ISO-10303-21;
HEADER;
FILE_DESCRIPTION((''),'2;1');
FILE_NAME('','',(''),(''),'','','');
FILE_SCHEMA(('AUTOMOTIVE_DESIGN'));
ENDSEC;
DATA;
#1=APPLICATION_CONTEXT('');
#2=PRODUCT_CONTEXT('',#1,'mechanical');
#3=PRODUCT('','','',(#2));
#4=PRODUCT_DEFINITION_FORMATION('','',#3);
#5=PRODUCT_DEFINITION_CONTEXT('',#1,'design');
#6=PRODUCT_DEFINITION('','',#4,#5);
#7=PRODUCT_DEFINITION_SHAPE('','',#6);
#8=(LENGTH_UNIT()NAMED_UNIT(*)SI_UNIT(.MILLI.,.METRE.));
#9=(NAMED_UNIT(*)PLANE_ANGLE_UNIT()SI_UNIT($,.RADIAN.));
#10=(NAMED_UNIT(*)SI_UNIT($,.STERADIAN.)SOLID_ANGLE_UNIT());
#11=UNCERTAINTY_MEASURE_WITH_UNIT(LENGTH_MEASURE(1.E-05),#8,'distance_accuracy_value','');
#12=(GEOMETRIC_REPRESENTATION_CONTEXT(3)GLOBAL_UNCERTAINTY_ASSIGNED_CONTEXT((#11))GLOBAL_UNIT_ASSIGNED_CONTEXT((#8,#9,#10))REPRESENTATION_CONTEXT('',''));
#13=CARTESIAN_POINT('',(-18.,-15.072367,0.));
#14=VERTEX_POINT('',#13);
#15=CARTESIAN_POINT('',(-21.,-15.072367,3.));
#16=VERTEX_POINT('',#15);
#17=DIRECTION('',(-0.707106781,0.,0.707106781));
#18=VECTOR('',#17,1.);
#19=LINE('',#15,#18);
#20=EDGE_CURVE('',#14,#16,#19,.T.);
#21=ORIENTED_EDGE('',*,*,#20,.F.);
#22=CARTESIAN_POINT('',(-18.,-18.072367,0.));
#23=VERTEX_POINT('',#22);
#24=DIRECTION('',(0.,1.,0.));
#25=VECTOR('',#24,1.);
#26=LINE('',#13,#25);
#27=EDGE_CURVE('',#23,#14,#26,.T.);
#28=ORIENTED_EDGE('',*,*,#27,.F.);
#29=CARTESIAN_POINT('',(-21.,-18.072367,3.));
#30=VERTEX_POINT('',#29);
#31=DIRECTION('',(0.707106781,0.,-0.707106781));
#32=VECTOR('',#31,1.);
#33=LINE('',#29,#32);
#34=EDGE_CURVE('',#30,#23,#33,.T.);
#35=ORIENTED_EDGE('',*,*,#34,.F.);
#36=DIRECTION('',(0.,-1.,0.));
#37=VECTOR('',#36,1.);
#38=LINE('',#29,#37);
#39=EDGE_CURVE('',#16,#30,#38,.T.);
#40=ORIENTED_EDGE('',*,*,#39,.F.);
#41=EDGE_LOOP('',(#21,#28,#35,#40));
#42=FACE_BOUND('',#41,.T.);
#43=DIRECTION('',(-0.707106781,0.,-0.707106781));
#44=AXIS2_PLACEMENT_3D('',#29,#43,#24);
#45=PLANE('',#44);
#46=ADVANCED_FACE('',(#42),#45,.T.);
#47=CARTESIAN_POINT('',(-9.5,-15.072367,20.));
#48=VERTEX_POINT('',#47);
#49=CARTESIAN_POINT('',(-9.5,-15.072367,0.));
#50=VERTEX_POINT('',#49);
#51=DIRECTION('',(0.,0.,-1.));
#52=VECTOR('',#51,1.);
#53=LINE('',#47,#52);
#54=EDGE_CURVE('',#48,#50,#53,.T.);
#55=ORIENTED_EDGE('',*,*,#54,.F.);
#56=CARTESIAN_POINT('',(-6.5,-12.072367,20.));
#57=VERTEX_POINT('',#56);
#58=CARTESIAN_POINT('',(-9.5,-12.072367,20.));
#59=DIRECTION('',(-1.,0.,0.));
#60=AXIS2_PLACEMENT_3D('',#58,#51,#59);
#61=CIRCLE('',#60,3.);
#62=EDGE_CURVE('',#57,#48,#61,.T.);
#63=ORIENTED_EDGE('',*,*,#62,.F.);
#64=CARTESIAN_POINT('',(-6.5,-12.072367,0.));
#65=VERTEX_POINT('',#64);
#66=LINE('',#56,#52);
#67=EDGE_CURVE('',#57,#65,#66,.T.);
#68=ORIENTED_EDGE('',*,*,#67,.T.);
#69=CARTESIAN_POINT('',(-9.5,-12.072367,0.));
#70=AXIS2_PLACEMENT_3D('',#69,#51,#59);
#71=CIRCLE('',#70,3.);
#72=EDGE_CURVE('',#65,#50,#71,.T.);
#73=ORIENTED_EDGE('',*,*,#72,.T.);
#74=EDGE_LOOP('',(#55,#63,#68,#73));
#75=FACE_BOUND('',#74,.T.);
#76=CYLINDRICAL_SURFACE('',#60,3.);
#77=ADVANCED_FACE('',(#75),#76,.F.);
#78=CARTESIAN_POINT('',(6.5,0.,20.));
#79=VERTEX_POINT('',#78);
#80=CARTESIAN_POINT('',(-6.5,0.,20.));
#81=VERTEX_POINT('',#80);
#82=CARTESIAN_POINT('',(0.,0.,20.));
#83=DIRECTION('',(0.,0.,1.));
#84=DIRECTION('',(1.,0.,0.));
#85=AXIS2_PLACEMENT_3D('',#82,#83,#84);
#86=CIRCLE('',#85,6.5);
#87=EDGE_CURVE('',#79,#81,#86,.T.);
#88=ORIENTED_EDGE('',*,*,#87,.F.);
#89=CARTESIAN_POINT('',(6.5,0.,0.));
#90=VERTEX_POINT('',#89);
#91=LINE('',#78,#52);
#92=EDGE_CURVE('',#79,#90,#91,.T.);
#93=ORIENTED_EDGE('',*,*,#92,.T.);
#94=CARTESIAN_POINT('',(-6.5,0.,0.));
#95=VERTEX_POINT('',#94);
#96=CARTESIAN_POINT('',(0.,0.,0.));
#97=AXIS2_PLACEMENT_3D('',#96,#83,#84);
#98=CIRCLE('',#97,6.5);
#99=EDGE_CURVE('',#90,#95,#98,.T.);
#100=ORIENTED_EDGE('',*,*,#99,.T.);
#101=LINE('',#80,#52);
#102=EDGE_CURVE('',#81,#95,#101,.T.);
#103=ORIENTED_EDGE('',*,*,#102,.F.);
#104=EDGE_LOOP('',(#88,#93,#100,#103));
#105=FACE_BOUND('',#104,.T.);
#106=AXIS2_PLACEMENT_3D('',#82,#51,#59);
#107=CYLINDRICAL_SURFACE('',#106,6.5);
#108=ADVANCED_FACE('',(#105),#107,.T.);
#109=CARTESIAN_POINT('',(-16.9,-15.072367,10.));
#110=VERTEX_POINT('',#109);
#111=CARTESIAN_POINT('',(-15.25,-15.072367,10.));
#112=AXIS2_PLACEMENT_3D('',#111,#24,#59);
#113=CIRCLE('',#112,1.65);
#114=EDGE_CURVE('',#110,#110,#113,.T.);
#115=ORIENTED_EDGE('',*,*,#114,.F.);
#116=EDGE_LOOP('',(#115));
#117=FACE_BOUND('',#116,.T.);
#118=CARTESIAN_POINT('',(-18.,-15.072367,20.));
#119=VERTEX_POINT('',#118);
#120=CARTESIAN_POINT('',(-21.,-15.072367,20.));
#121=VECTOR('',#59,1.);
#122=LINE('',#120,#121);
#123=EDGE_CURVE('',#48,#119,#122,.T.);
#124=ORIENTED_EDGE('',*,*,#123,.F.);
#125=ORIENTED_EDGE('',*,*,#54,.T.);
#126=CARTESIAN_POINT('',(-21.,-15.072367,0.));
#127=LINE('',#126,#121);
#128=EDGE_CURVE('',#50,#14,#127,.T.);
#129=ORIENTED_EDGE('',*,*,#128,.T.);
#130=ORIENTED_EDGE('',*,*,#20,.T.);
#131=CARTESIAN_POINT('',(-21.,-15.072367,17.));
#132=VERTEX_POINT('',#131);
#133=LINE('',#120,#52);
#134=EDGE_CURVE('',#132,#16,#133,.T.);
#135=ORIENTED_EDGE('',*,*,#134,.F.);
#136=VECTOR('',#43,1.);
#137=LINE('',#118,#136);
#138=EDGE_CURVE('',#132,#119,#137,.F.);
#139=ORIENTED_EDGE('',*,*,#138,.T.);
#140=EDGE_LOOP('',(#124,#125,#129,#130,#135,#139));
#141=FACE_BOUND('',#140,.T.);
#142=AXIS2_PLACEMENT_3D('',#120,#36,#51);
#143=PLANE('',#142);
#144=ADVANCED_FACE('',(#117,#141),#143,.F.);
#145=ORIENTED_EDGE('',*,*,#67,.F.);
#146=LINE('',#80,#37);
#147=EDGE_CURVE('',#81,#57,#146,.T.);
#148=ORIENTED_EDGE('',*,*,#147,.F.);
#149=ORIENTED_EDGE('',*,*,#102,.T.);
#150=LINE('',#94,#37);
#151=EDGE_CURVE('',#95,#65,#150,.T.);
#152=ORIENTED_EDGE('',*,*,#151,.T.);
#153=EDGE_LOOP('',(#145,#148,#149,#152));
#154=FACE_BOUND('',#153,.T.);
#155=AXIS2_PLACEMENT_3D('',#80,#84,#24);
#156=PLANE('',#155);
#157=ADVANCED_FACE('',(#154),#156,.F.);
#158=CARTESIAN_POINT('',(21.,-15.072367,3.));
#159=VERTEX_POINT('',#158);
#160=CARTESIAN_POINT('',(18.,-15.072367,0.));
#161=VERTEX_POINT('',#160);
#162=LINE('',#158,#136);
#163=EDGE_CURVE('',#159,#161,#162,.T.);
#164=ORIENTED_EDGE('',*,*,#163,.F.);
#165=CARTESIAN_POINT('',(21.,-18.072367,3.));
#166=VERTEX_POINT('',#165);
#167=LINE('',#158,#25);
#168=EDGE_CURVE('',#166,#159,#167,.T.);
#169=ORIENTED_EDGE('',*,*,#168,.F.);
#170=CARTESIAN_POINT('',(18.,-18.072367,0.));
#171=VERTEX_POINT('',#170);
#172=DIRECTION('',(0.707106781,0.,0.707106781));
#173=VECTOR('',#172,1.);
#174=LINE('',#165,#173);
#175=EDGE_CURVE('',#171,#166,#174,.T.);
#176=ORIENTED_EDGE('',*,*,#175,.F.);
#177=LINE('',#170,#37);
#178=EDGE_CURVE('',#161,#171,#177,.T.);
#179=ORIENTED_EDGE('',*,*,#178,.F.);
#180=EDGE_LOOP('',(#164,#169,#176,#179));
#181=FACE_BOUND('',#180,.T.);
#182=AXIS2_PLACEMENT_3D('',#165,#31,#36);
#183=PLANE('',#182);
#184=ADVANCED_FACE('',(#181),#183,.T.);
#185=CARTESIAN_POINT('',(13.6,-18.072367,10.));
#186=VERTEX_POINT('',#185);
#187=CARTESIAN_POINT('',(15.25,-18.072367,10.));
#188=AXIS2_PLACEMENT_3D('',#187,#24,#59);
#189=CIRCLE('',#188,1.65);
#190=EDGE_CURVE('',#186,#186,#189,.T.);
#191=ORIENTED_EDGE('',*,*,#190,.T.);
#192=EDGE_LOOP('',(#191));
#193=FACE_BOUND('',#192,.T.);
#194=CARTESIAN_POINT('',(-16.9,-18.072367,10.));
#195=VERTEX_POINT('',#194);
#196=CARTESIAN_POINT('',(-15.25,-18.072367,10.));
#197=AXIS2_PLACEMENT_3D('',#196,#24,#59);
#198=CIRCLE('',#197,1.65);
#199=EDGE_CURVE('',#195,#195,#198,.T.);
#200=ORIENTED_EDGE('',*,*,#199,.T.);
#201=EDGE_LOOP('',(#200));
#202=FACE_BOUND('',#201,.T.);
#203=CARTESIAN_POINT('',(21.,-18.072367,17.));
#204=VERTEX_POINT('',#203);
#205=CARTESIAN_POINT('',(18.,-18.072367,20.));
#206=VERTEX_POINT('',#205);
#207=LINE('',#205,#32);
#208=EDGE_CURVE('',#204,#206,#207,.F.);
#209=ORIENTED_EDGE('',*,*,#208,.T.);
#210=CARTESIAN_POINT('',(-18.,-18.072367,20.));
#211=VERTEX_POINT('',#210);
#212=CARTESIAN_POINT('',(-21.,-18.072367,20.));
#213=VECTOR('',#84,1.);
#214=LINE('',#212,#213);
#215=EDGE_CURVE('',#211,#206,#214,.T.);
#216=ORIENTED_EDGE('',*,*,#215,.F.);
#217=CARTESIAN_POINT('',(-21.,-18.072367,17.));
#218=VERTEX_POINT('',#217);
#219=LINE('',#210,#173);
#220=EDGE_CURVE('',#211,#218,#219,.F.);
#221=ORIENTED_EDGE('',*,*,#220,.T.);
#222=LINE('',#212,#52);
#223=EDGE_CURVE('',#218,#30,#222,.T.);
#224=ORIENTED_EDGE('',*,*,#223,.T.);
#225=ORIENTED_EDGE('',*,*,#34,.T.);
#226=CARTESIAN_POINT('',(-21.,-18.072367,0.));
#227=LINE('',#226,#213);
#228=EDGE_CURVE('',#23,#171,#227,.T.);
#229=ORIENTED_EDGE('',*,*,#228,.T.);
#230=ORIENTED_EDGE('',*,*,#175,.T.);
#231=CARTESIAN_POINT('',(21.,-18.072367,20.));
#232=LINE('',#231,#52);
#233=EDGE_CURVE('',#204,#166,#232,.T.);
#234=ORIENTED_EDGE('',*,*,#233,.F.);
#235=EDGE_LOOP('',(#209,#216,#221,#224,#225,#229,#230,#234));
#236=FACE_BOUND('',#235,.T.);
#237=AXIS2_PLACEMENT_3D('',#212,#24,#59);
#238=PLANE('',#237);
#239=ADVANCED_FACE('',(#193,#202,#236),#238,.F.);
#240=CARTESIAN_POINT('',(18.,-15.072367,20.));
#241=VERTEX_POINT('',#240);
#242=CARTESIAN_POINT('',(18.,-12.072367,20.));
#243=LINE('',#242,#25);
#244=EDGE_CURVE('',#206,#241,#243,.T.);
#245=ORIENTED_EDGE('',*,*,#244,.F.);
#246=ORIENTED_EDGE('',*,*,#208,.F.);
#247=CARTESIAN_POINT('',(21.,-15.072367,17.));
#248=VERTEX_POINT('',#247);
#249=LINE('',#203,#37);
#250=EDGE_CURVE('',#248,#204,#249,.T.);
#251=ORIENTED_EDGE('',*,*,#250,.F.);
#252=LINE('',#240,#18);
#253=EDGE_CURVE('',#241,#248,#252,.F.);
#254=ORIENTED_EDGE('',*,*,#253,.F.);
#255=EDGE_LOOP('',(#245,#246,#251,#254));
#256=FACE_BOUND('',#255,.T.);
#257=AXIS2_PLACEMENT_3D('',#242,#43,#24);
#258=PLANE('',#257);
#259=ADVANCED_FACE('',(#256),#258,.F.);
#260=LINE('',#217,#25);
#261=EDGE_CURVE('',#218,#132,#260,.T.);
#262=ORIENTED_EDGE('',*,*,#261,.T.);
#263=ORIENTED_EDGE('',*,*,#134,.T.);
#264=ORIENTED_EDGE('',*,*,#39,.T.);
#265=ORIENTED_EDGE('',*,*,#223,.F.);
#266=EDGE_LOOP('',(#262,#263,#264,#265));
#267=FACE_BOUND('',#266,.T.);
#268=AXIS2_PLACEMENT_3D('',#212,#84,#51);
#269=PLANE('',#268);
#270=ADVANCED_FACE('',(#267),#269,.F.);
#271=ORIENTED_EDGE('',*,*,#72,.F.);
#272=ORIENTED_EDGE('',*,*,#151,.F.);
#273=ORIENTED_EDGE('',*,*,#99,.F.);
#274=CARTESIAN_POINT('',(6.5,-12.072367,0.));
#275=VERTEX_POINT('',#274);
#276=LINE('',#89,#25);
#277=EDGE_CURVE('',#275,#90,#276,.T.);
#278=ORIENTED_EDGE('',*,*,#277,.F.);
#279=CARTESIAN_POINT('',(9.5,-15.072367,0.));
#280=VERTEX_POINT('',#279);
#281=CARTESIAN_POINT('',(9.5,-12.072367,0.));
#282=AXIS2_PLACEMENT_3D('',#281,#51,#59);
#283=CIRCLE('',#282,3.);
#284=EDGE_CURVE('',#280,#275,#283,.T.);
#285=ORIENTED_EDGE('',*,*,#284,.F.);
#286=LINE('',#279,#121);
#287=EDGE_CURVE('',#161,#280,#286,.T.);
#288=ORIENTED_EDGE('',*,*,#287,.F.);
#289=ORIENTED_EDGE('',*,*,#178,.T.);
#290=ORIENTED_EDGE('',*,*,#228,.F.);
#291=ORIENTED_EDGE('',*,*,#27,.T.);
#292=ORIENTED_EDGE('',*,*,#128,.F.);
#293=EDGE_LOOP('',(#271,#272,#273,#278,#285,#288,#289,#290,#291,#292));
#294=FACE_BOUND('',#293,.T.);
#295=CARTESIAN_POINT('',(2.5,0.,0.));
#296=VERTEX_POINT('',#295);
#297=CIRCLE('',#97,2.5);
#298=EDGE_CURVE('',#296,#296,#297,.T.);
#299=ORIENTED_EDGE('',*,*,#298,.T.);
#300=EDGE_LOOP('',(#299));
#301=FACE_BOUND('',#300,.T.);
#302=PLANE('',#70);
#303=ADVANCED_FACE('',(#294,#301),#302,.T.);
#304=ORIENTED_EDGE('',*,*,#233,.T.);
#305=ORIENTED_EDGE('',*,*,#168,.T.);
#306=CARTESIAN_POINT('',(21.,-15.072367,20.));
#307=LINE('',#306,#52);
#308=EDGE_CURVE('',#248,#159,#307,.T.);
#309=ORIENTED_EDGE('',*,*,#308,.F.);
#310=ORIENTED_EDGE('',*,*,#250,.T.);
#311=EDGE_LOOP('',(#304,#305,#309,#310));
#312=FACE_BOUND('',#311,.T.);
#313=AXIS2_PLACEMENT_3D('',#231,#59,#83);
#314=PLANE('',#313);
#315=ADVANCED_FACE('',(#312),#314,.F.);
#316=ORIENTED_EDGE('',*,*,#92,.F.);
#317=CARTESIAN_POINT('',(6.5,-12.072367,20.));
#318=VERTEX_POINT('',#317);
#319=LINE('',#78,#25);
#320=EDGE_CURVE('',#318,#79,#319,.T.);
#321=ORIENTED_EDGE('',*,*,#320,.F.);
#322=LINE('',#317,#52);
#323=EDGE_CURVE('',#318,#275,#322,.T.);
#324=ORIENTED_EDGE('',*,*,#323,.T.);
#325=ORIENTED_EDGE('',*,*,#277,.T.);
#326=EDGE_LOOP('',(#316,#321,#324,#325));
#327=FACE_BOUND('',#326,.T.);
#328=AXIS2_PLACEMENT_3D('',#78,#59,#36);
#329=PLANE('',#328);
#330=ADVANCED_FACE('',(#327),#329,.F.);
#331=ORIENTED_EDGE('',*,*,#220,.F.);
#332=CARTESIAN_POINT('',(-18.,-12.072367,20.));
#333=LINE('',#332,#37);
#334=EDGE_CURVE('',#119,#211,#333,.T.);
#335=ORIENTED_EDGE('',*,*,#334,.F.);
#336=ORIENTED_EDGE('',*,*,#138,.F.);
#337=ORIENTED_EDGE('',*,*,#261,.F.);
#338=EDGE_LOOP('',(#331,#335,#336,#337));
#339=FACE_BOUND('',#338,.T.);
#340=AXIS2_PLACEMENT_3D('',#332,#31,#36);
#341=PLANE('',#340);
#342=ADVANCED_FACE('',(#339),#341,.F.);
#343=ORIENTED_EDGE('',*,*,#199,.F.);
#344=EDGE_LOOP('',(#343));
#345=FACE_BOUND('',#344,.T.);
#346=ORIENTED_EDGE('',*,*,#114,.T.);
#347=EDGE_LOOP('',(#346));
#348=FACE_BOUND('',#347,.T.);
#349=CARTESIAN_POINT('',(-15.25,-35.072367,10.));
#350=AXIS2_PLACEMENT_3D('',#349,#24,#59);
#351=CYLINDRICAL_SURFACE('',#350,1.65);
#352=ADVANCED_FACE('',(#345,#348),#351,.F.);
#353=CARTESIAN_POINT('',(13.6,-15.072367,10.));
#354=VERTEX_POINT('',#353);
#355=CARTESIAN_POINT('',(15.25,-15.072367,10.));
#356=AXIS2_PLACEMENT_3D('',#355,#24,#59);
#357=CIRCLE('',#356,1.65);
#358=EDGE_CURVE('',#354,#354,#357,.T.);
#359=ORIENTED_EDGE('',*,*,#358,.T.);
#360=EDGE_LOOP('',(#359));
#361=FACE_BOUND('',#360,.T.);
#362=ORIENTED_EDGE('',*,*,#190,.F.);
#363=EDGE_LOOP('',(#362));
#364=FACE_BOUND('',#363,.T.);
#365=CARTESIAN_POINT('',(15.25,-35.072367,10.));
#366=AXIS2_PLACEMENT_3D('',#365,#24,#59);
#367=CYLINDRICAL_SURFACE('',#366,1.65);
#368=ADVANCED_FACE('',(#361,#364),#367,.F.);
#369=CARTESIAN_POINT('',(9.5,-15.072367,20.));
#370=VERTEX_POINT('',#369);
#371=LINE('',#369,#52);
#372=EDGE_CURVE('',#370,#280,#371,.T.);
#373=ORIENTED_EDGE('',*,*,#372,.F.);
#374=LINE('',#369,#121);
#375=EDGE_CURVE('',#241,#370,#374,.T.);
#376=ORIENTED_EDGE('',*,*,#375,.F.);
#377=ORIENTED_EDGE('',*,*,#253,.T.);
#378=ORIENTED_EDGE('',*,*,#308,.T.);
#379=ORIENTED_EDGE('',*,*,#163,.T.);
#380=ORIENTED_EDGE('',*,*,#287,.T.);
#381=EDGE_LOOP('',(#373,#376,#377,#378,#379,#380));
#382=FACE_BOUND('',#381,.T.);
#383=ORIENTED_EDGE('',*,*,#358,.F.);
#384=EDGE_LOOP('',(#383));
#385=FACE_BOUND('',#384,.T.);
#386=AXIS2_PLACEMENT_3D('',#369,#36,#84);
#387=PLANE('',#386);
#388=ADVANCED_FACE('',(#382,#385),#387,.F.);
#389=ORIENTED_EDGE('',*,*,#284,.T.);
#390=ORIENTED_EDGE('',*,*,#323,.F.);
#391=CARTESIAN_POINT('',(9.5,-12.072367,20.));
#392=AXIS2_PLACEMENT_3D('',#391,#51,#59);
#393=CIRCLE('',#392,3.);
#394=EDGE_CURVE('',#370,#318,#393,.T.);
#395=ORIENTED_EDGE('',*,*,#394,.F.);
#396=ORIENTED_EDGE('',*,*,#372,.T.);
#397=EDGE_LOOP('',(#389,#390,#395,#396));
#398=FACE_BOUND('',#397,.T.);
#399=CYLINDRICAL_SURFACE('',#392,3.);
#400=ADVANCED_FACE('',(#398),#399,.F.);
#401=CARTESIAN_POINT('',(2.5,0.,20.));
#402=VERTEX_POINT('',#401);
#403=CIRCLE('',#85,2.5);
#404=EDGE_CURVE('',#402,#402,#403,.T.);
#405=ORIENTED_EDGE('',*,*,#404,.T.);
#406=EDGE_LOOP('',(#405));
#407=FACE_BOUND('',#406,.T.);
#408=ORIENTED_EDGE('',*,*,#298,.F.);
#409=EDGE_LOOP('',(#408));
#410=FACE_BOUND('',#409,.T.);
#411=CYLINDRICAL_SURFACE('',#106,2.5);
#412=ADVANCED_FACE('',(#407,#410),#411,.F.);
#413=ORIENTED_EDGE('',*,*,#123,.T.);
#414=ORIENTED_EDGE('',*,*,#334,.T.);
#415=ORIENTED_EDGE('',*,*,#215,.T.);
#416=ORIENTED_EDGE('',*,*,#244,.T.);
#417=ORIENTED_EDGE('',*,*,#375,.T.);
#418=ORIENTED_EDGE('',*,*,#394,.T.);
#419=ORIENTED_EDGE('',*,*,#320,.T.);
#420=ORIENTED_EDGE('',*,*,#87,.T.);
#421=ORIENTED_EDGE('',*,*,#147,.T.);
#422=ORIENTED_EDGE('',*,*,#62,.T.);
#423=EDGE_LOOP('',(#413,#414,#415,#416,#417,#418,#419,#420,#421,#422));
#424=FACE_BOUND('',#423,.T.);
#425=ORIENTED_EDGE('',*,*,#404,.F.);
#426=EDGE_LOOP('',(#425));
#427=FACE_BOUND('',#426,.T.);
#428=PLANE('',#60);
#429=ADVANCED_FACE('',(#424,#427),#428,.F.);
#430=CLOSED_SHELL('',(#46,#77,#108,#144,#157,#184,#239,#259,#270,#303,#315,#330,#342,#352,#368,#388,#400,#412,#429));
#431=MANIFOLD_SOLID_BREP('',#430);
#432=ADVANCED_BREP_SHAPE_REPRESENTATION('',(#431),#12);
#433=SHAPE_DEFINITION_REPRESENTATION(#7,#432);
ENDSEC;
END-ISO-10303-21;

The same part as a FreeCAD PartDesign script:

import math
import FreeCAD as App
import Part
import Sketcher

V = App.Vector


def edges_at(feature, points):
    """Names of the edges that pass closest to the given points."""
    edges = feature.Shape.Edges
    near = lambda p: min(range(len(edges)), key=lambda i: edges[i].distToShape(Part.Vertex(*p))[0])
    return sorted({f"Edge{near(p) + 1}" for p in points})

doc = App.newDocument("Part")
body = doc.addObject("PartDesign::Body", "Body")

# Sketch on XY plane
sketch1 = body.newObject("Sketcher::SketchObject", "Sketch")
sketch1.AttachmentSupport = (doc.getObject("XY_Plane"), [""])
sketch1.MapMode = "FlatFace"
sketch1.addGeometry([
    Part.LineSegment(V(-21, -18.1, 0), V(21, -18.1, 0)),  # 0
    Part.LineSegment(V(21, -18.1, 0), V(21, -15.1, 0)),  # 1
    Part.LineSegment(V(21, -15.1, 0), V(9.5, -15.1, 0)),  # 2
    Part.ArcOfCircle(Part.Circle(V(9.5, -12.1, 0), V(0, 0, 1), 3), math.radians(180), math.radians(270)),  # 3
    Part.LineSegment(V(6.5, -12.1, 0), V(6.5, 0, 0)),  # 4
    Part.ArcOfCircle(Part.Circle(V(0, 0, 0), V(0, 0, 1), 6.5), math.radians(0), math.radians(180)),  # 5
    Part.LineSegment(V(-6.5, 0, 0), V(-6.5, -12.1, 0)),  # 6
    Part.ArcOfCircle(Part.Circle(V(-9.5, -12.1, 0), V(0, 0, 1), 3), math.radians(-90), math.radians(0)),  # 7
    Part.LineSegment(V(-9.5, -15.1, 0), V(-21, -15.1, 0)),  # 8
    Part.LineSegment(V(-21, -15.1, 0), V(-21, -18.1, 0)),  # 9
    Part.Circle(V(0, 0, 0), V(0, 0, 1), 2.5),  # 10
], False)
sketch1.addConstraint([
    Sketcher.Constraint("Coincident", 0, 2, 1, 1),
    Sketcher.Constraint("Coincident", 1, 2, 2, 1),
    Sketcher.Constraint("Tangent", 2, 2, 3, 2),
    Sketcher.Constraint("Tangent", 3, 1, 4, 1),
    Sketcher.Constraint("Tangent", 4, 2, 5, 1),
    Sketcher.Constraint("Tangent", 5, 2, 6, 1),
    Sketcher.Constraint("Tangent", 6, 2, 7, 2),
    Sketcher.Constraint("Tangent", 7, 1, 8, 1),
    Sketcher.Constraint("Coincident", 8, 2, 9, 1),
    Sketcher.Constraint("Coincident", 9, 2, 0, 1),
    Sketcher.Constraint("Horizontal", 0),
    Sketcher.Constraint("Vertical", 1),
    Sketcher.Constraint("Horizontal", 2),
    Sketcher.Constraint("Vertical", 4),
    Sketcher.Constraint("Vertical", 6),
    Sketcher.Constraint("Horizontal", 8),
    Sketcher.Constraint("Vertical", 9),
    Sketcher.Constraint("Coincident", 5, 3, -1, 1),
    Sketcher.Constraint("Coincident", 10, 3, -1, 1),
    Sketcher.Constraint("Equal", 3, 7),
    Sketcher.Constraint("Symmetric", 1, 2, 8, 2, -2),
    Sketcher.Constraint("Diameter", 10, 5.0),
    Sketcher.Constraint("Radius", 3, 3.0),
    Sketcher.Constraint("Radius", 5, 6.5),
    Sketcher.Constraint("DistanceX", 0, 1, 0, 2, 42.0),
    Sketcher.Constraint("DistanceY", 1, 1, 1, 2, 3.0),
    Sketcher.Constraint("DistanceY", 4, 1, 4, 2, 12.072367),
])
pad1 = body.newObject("PartDesign::Pad", "Pad")
pad1.Profile = sketch1
pad1.Length = 20
doc.recompute()

chamfer = body.newObject("PartDesign::Chamfer", "Chamfer")
chamfer.Base = (pad1, edges_at(pad1, [
    (21, -16.572, 20),
    (21, -16.572, 0),
    (-21, -16.572, 0),
    (-21, -16.572, 20),
]))
chamfer.Size = 3

# Sketch on XZ plane
sketch2 = body.newObject("Sketcher::SketchObject", "Sketch001")
sketch2.AttachmentSupport = (doc.getObject("XZ_Plane"), [""])
sketch2.MapMode = "FlatFace"
sketch2.AttachmentOffset = App.Placement(V(0, 0, 15.072367), App.Rotation())
sketch2.addGeometry([
    Part.Circle(V(15.2, 10, 0), V(0, 0, 1), 1.6),
    Part.Circle(V(-15.2, 10, 0), V(0, 0, 1), 1.6),
], False)
sketch2.addConstraint([
    Sketcher.Constraint("Equal", 0, 1),
    Sketcher.Constraint("Symmetric", 0, 3, 1, 3, -2),
    Sketcher.Constraint("Diameter", 0, 3.3),
    Sketcher.Constraint("DistanceY", -1, 1, 0, 3, 10.0),
    Sketcher.Constraint("DistanceX", 1, 3, 0, 3, 30.5),
])
pocket1 = body.newObject("PartDesign::Pocket", "Pocket")
pocket1.Profile = sketch2
pocket1.Length = 20
pocket1.Reversed = True

doc.recompute()
